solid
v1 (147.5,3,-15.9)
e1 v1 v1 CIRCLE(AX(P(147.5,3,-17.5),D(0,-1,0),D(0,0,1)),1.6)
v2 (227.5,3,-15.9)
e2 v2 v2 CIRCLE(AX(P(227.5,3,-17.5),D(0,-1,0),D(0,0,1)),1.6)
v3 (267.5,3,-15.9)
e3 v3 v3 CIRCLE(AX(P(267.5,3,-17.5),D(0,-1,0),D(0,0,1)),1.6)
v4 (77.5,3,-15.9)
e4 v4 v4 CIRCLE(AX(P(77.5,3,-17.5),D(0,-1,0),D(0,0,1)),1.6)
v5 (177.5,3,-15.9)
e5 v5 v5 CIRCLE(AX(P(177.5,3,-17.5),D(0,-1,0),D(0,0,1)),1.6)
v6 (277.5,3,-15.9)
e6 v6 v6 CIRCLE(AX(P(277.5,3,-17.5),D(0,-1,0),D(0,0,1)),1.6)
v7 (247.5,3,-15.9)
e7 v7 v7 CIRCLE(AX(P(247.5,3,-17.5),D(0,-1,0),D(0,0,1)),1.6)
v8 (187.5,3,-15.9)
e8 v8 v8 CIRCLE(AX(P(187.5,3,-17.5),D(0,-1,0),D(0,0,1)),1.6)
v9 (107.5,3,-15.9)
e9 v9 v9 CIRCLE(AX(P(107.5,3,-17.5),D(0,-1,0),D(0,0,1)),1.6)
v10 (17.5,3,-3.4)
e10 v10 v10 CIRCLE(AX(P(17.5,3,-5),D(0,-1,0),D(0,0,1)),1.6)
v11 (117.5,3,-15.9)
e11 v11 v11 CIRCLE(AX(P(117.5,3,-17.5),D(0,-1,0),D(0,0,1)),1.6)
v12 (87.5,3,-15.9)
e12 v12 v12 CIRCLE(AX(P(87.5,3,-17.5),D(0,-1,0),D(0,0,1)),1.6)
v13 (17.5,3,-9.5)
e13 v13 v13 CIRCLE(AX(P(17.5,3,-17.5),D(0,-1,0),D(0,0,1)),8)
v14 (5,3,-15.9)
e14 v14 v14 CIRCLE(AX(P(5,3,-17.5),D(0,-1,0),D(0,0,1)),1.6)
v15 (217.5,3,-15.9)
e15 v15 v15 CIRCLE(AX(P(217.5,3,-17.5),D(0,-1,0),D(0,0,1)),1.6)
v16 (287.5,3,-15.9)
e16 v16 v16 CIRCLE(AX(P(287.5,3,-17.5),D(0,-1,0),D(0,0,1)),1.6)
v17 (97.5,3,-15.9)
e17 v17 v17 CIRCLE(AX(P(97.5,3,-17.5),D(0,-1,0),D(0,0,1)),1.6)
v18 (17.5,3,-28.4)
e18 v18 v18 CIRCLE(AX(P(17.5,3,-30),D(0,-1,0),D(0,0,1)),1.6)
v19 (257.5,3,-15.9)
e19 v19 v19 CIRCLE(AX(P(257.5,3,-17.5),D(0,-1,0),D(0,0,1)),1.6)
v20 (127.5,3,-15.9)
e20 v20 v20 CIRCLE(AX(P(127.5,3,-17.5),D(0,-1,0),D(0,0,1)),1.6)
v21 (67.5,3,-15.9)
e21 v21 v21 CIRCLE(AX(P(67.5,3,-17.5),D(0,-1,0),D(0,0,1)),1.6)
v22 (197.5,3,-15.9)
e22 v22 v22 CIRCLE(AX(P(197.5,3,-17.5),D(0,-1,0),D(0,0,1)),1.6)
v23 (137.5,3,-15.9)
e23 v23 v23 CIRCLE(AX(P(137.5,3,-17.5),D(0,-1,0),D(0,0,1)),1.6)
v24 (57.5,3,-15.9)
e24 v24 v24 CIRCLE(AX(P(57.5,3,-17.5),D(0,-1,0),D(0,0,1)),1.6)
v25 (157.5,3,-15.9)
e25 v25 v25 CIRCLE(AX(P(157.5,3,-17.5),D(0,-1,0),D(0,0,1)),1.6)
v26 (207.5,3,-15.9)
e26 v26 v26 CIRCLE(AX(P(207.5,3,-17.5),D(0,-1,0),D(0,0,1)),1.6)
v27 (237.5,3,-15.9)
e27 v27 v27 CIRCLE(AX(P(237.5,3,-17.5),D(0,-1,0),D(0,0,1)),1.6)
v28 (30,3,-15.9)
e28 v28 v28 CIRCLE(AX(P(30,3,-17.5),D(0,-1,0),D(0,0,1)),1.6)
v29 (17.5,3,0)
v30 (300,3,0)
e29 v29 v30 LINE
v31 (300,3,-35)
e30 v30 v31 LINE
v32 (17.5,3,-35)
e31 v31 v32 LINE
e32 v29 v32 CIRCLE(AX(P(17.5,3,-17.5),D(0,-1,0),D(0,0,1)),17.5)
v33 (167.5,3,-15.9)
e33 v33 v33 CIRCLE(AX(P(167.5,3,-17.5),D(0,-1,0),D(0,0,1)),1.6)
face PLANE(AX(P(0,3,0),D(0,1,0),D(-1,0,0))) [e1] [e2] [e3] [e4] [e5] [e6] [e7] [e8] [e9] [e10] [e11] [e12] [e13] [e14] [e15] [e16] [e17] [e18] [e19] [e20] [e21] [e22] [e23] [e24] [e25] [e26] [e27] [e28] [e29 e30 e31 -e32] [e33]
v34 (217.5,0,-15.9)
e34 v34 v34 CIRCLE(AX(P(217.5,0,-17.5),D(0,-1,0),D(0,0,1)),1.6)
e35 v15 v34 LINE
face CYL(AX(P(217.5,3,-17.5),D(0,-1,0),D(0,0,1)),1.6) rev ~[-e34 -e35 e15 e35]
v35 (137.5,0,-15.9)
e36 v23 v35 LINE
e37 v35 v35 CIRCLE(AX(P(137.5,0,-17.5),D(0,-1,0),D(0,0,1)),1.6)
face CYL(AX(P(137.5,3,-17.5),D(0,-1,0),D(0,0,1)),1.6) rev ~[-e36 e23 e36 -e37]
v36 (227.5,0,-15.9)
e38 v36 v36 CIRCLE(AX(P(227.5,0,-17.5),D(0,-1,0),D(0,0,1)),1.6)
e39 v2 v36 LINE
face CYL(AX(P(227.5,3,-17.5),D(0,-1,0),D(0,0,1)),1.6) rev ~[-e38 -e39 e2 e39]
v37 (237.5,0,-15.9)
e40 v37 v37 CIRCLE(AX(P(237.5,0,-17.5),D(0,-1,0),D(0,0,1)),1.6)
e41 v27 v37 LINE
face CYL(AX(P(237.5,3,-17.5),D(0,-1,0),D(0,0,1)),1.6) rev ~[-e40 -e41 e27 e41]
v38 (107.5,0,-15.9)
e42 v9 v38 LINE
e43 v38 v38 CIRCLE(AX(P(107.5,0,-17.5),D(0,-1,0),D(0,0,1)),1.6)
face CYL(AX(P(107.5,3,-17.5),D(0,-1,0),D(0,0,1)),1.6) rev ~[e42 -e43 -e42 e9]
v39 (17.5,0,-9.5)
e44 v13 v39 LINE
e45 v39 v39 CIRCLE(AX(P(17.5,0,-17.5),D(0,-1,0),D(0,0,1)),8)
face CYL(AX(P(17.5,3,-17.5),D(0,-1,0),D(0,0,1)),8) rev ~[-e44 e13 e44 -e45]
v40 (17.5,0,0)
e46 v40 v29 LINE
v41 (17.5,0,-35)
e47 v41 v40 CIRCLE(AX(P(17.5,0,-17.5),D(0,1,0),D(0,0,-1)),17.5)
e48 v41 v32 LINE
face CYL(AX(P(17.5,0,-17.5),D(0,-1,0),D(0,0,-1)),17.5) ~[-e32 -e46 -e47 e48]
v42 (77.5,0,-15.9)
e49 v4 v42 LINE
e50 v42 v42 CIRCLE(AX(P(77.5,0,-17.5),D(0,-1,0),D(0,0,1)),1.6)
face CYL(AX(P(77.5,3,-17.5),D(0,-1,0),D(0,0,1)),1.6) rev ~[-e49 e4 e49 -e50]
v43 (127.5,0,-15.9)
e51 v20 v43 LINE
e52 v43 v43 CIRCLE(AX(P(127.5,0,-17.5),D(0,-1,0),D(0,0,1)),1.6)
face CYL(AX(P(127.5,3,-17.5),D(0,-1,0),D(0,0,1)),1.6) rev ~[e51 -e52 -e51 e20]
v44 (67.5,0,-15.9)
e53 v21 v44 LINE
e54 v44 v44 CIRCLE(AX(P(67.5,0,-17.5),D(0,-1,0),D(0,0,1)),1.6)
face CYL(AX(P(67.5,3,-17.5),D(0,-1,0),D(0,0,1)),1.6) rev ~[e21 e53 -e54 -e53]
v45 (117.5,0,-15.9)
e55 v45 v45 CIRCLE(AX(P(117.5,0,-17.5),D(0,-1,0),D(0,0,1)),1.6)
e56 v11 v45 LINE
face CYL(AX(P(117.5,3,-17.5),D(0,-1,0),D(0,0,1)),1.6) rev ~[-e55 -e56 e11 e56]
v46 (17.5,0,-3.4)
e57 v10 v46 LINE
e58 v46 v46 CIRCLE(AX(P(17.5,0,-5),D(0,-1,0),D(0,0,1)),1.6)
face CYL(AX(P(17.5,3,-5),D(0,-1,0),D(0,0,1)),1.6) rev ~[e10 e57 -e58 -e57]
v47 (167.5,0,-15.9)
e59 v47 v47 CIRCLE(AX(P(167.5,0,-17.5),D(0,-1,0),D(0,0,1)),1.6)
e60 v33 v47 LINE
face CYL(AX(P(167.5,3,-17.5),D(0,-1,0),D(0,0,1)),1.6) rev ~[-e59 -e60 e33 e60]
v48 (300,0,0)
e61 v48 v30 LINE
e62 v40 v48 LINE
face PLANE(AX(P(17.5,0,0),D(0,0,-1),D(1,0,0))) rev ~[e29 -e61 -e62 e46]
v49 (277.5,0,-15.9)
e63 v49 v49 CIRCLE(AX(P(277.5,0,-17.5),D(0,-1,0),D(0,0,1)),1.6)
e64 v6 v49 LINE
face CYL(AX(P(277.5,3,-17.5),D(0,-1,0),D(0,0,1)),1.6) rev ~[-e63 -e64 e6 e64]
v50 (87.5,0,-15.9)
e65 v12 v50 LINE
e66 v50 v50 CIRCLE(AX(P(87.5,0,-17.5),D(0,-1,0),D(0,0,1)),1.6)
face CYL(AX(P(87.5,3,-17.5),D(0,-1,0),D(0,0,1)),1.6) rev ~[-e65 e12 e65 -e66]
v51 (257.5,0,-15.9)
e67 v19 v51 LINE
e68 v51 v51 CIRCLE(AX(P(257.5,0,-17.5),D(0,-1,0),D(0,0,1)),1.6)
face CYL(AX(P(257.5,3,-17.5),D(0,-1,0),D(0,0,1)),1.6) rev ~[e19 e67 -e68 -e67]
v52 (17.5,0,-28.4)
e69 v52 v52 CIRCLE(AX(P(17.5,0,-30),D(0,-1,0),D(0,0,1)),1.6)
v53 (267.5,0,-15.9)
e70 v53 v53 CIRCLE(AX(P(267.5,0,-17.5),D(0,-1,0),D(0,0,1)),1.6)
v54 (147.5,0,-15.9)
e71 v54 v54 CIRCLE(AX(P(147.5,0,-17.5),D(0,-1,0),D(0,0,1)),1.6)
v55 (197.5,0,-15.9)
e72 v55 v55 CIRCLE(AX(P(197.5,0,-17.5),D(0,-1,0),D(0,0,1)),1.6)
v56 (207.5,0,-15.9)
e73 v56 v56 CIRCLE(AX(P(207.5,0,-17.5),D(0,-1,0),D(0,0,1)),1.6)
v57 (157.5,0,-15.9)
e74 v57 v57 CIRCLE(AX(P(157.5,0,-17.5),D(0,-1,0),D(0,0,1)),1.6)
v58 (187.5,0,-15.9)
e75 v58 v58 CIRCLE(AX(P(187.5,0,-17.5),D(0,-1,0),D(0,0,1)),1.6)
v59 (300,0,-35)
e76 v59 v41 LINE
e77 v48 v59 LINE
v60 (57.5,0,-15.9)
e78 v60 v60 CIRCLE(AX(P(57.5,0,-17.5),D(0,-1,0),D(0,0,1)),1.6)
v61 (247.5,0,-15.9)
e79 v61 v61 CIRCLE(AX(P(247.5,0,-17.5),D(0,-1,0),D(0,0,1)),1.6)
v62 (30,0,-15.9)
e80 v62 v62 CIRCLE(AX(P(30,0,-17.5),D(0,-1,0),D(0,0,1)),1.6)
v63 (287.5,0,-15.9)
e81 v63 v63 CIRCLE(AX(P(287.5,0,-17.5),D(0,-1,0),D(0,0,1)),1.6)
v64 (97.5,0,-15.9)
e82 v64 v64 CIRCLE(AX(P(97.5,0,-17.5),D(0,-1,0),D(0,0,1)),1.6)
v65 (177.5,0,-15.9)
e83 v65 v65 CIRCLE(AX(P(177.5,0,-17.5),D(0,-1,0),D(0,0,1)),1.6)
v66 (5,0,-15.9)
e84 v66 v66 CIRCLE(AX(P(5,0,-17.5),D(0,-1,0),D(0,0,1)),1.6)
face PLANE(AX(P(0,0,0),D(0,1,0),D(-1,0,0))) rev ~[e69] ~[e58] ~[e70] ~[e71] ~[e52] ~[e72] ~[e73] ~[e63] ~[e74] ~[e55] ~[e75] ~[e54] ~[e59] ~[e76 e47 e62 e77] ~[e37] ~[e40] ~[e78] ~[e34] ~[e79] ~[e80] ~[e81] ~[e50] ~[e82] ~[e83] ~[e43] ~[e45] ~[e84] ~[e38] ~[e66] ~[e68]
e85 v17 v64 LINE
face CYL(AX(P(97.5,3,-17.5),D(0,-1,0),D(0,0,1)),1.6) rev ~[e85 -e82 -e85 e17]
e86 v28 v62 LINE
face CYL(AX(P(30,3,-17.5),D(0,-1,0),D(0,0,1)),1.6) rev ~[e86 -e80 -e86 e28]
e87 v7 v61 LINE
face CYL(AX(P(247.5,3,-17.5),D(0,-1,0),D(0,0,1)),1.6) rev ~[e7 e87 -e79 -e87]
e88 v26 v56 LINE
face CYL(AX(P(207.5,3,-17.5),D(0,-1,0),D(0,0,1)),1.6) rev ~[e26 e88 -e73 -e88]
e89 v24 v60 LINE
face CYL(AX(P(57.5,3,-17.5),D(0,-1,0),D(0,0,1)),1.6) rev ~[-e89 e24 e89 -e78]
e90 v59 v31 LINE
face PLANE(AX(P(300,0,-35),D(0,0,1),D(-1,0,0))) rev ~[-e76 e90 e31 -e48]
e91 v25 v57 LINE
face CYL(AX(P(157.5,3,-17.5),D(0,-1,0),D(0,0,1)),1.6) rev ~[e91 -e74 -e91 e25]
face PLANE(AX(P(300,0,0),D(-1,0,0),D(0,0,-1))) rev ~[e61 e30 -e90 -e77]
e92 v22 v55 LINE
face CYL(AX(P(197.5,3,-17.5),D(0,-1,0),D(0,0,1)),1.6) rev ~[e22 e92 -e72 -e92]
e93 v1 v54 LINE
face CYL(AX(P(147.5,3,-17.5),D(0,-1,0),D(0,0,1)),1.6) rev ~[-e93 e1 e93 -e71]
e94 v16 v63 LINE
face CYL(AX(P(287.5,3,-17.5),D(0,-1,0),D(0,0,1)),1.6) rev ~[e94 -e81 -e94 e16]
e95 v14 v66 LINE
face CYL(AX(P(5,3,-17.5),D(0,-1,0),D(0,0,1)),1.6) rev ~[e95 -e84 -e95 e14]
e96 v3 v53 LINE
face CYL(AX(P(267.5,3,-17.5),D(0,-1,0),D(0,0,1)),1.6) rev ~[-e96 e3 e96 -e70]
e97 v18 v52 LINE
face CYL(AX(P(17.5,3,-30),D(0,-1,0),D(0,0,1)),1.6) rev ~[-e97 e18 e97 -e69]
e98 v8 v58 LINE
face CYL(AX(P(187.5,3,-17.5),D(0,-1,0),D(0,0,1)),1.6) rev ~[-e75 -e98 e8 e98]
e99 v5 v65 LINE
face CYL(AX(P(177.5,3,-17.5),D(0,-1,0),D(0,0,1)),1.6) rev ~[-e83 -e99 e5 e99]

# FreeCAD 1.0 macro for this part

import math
import FreeCAD as App
import Part
import Sketcher

V = App.Vector
Q = App.Units.Quantity

doc = App.newDocument("Part")
body = doc.addObject("PartDesign::Body", "Body")

# Sketch on XZ plane
sketch1 = doc.addObject("Sketcher::SketchObject", "Sketch")
body.addObject(sketch1)
sketch1.AttachmentSupport = (doc.XZ_Plane, [""])
sketch1.MapMode = "FlatFace"
sketch1.addGeometry(Part.ArcOfCircle(Part.Circle(V(18, -18, 0), V(0, 0, 1), 18), math.radians(90), math.radians(270)), False)
sketch1.addGeometry(Part.LineSegment(V(18, 0, 0), V(300, 0, 0)), False)
sketch1.addGeometry(Part.LineSegment(V(300, 0, 0), V(300, -35, 0)), False)
sketch1.addGeometry(Part.LineSegment(V(300, -35, 0), V(18, -35, 0)), False)
sketch1.addConstraint(Sketcher.Constraint("Tangent", 0, 1, 1, 1))
sketch1.addConstraint(Sketcher.Constraint("Coincident", 1, 2, 2, 1))
sketch1.addConstraint(Sketcher.Constraint("Coincident", 2, 2, 3, 1))
sketch1.addConstraint(Sketcher.Constraint("Tangent", 3, 2, 0, 2))
sketch1.addConstraint(Sketcher.Constraint("Horizontal", 1))
sketch1.addConstraint(Sketcher.Constraint("Vertical", 2))
sketch1.addConstraint(Sketcher.Constraint("Horizontal", 3))
sketch1.addConstraint(Sketcher.Constraint("PointOnObject", 0, 1, -1))
sketch1.addConstraint(Sketcher.Constraint("Radius", 0, Q("17.5 mm")))
sketch1.addConstraint(Sketcher.Constraint("DistanceX", -1, 1, 1, 2, Q("300 mm")))
sketch1.addConstraint(Sketcher.Constraint("DistanceX", -1, 1, 0, 3, Q("17.5 mm")))
pad1 = doc.addObject("PartDesign::Pad", "Pad")
body.addObject(pad1)
pad1.Profile = sketch1
pad1.Length = 3
pad1.Reversed = True

# Sketch on XZ plane
sketch2 = doc.addObject("Sketcher::SketchObject", "Sketch001")
body.addObject(sketch2)
sketch2.AttachmentSupport = (doc.XZ_Plane, [""])
sketch2.MapMode = "FlatFace"
sketch2.AttachmentOffset = App.Placement(V(0, 0, -3), App.Rotation())
sketch2.addGeometry(Part.Circle(V(18, -18, 0), V(0, 0, 1), 8), False)
sketch2.addConstraint(Sketcher.Constraint("Diameter", 0, Q("16 mm")))
sketch2.addConstraint(Sketcher.Constraint("DistanceX", -1, 1, 0, 3, Q("17.5 mm")))
sketch2.addConstraint(Sketcher.Constraint("DistanceY", 0, 3, -1, 1, Q("17.5 mm")))
doc.recompute()
hole = doc.addObject("PartDesign::Hole", "Hole")
body.addObject(hole)
hole.Profile = sketch2
hole.ThreadType = "None"
hole.Diameter = 16
hole.DepthType = "ThroughAll"
hole.Reversed = True

# Sketch on XZ plane
sketch3 = doc.addObject("Sketcher::SketchObject", "Sketch002")
body.addObject(sketch3)
sketch3.AttachmentSupport = (doc.XZ_Plane, [""])
sketch3.MapMode = "FlatFace"
sketch3.AttachmentOffset = App.Placement(V(0, 0, -3), App.Rotation())
sketch3.addGeometry(Part.Circle(V(57.5, -17.5, 0), V(0, 0, 1), 1.6), False)
sketch3.addGeometry(Part.Circle(V(67.5, -17.5, 0), V(0, 0, 1), 1.6), False)
sketch3.addGeometry(Part.Circle(V(77.5, -17.5, 0), V(0, 0, 1), 1.6), False)
sketch3.addGeometry(Part.Circle(V(87.5, -17.5, 0), V(0, 0, 1), 1.6), False)
sketch3.addGeometry(Part.Circle(V(97.5, -17.5, 0), V(0, 0, 1), 1.6), False)
sketch3.addGeometry(Part.Circle(V(107.5, -17.5, 0), V(0, 0, 1), 1.6), False)
sketch3.addGeometry(Part.Circle(V(117.5, -17.5, 0), V(0, 0, 1), 1.6), False)
sketch3.addGeometry(Part.Circle(V(127.5, -17.5, 0), V(0, 0, 1), 1.6), False)
sketch3.addGeometry(Part.Circle(V(137.5, -17.5, 0), V(0, 0, 1), 1.6), False)
sketch3.addGeometry(Part.Circle(V(147.5, -17.5, 0), V(0, 0, 1), 1.6), False)
sketch3.addGeometry(Part.Circle(V(157.5, -17.5, 0), V(0, 0, 1), 1.6), False)
sketch3.addGeometry(Part.Circle(V(167.5, -17.5, 0), V(0, 0, 1), 1.6), False)
sketch3.addGeometry(Part.Circle(V(177.5, -17.5, 0), V(0, 0, 1), 1.6), False)
sketch3.addGeometry(Part.Circle(V(187.5, -17.5, 0), V(0, 0, 1), 1.6), False)
sketch3.addGeometry(Part.Circle(V(197.5, -17.5, 0), V(0, 0, 1), 1.6), False)
sketch3.addGeometry(Part.Circle(V(207.5, -17.5, 0), V(0, 0, 1), 1.6), False)
sketch3.addGeometry(Part.Circle(V(217.5, -17.5, 0), V(0, 0, 1), 1.6), False)
sketch3.addGeometry(Part.Circle(V(227.5, -17.5, 0), V(0, 0, 1), 1.6), False)
sketch3.addGeometry(Part.Circle(V(237.5, -17.5, 0), V(0, 0, 1), 1.6), False)
sketch3.addGeometry(Part.Circle(V(247.5, -17.5, 0), V(0, 0, 1), 1.6), False)
sketch3.addGeometry(Part.Circle(V(257.5, -17.5, 0), V(0, 0, 1), 1.6), False)
sketch3.addGeometry(Part.Circle(V(267.5, -17.5, 0), V(0, 0, 1), 1.6), False)
sketch3.addGeometry(Part.Circle(V(277.5, -17.5, 0), V(0, 0, 1), 1.6), False)
sketch3.addGeometry(Part.Circle(V(287.5, -17.5, 0), V(0, 0, 1), 1.6), False)
sketch3.addConstraint(Sketcher.Constraint("Equal", 0, 1))
sketch3.addConstraint(Sketcher.Constraint("Equal", 1, 2))
sketch3.addConstraint(Sketcher.Constraint("Equal", 2, 3))
sketch3.addConstraint(Sketcher.Constraint("Equal", 3, 4))
sketch3.addConstraint(Sketcher.Constraint("Equal", 4, 5))
sketch3.addConstraint(Sketcher.Constraint("Equal", 5, 6))
sketch3.addConstraint(Sketcher.Constraint("Equal", 6, 7))
sketch3.addConstraint(Sketcher.Constraint("Equal", 7, 8))
sketch3.addConstraint(Sketcher.Constraint("Equal", 8, 9))
sketch3.addConstraint(Sketcher.Constraint("Equal", 9, 10))
sketch3.addConstraint(Sketcher.Constraint("Equal", 10, 11))
sketch3.addConstraint(Sketcher.Constraint("Equal", 11, 12))
sketch3.addConstraint(Sketcher.Constraint("Equal", 12, 13))
sketch3.addConstraint(Sketcher.Constraint("Equal", 13, 14))
sketch3.addConstraint(Sketcher.Constraint("Equal", 14, 15))
sketch3.addConstraint(Sketcher.Constraint("Equal", 15, 16))
sketch3.addConstraint(Sketcher.Constraint("Equal", 16, 17))
sketch3.addConstraint(Sketcher.Constraint("Equal", 17, 18))
sketch3.addConstraint(Sketcher.Constraint("Equal", 18, 19))
sketch3.addConstraint(Sketcher.Constraint("Equal", 19, 20))
sketch3.addConstraint(Sketcher.Constraint("Equal", 20, 21))
sketch3.addConstraint(Sketcher.Constraint("Equal", 21, 22))
sketch3.addConstraint(Sketcher.Constraint("Equal", 22, 23))
sketch3.addConstraint(Sketcher.Constraint("Horizontal", 0, 3, 1, 3))
sketch3.addConstraint(Sketcher.Constraint("Horizontal", 1, 3, 2, 3))
sketch3.addConstraint(Sketcher.Constraint("Horizontal", 2, 3, 3, 3))
sketch3.addConstraint(Sketcher.Constraint("Horizontal", 3, 3, 4, 3))
sketch3.addConstraint(Sketcher.Constraint("Horizontal", 4, 3, 5, 3))
sketch3.addConstraint(Sketcher.Constraint("Horizontal", 5, 3, 6, 3))
sketch3.addConstraint(Sketcher.Constraint("Horizontal", 6, 3, 7, 3))
sketch3.addConstraint(Sketcher.Constraint("Horizontal", 7, 3, 8, 3))
sketch3.addConstraint(Sketcher.Constraint("Horizontal", 8, 3, 9, 3))
sketch3.addConstraint(Sketcher.Constraint("Horizontal", 9, 3, 10, 3))
sketch3.addConstraint(Sketcher.Constraint("Horizontal", 10, 3, 11, 3))
sketch3.addConstraint(Sketcher.Constraint("Horizontal", 11, 3, 12, 3))
sketch3.addConstraint(Sketcher.Constraint("Horizontal", 12, 3, 13, 3))
sketch3.addConstraint(Sketcher.Constraint("Horizontal", 13, 3, 14, 3))
sketch3.addConstraint(Sketcher.Constraint("Horizontal", 14, 3, 15, 3))
sketch3.addConstraint(Sketcher.Constraint("Horizontal", 15, 3, 16, 3))
sketch3.addConstraint(Sketcher.Constraint("Horizontal", 16, 3, 17, 3))
sketch3.addConstraint(Sketcher.Constraint("Horizontal", 17, 3, 18, 3))
sketch3.addConstraint(Sketcher.Constraint("Horizontal", 18, 3, 19, 3))
sketch3.addConstraint(Sketcher.Constraint("Horizontal", 19, 3, 20, 3))
sketch3.addConstraint(Sketcher.Constraint("Horizontal", 20, 3, 21, 3))
sketch3.addConstraint(Sketcher.Constraint("Horizontal", 21, 3, 22, 3))
sketch3.addConstraint(Sketcher.Constraint("Horizontal", 22, 3, 23, 3))
sketch3.addConstraint(Sketcher.Constraint("Diameter", 0, Q("3.2 mm")))
sketch3.addConstraint(Sketcher.Constraint("DistanceX", 0, 3, 1, 3, Q("10 mm")))
sketch3.addConstraint(Sketcher.Constraint("DistanceX", 1, 3, 2, 3, Q("10 mm")))
sketch3.addConstraint(Sketcher.Constraint("DistanceX", 2, 3, 3, 3, Q("10 mm")))
sketch3.addConstraint(Sketcher.Constraint("DistanceX", 3, 3, 4, 3, Q("10 mm")))
sketch3.addConstraint(Sketcher.Constraint("DistanceX", 4, 3, 5, 3, Q("10 mm")))
sketch3.addConstraint(Sketcher.Constraint("DistanceX", 5, 3, 6, 3, Q("10 mm")))
sketch3.addConstraint(Sketcher.Constraint("DistanceX", 6, 3, 7, 3, Q("10 mm")))
sketch3.addConstraint(Sketcher.Constraint("DistanceX", 7, 3, 8, 3, Q("10 mm")))
sketch3.addConstraint(Sketcher.Constraint("DistanceX", 8, 3, 9, 3, Q("10 mm")))
sketch3.addConstraint(Sketcher.Constraint("DistanceX", 9, 3, 10, 3, Q("10 mm")))
sketch3.addConstraint(Sketcher.Constraint("DistanceX", 10, 3, 11, 3, Q("10 mm")))
sketch3.addConstraint(Sketcher.Constraint("DistanceX", 11, 3, 12, 3, Q("10 mm")))
sketch3.addConstraint(Sketcher.Constraint("DistanceX", 12, 3, 13, 3, Q("10 mm")))
sketch3.addConstraint(Sketcher.Constraint("DistanceX", 13, 3, 14, 3, Q("10 mm")))
sketch3.addConstraint(Sketcher.Constraint("DistanceX", 14, 3, 15, 3, Q("10 mm")))
sketch3.addConstraint(Sketcher.Constraint("DistanceX", 15, 3, 16, 3, Q("10 mm")))
sketch3.addConstraint(Sketcher.Constraint("DistanceX", 16, 3, 17, 3, Q("10 mm")))
sketch3.addConstraint(Sketcher.Constraint("DistanceX", 17, 3, 18, 3, Q("10 mm")))
sketch3.addConstraint(Sketcher.Constraint("DistanceX", 18, 3, 19, 3, Q("10 mm")))
sketch3.addConstraint(Sketcher.Constraint("DistanceX", 19, 3, 20, 3, Q("10 mm")))
sketch3.addConstraint(Sketcher.Constraint("DistanceX", 20, 3, 21, 3, Q("10 mm")))
sketch3.addConstraint(Sketcher.Constraint("DistanceX", 21, 3, 22, 3, Q("10 mm")))
sketch3.addConstraint(Sketcher.Constraint("DistanceX", 22, 3, 23, 3, Q("10 mm")))
sketch3.addConstraint(Sketcher.Constraint("DistanceX", -1, 1, 0, 3, Q("57.5 mm")))
sketch3.addConstraint(Sketcher.Constraint("DistanceY", 0, 3, -1, 1, Q("17.5 mm")))
doc.recompute()
hole2 = doc.addObject("PartDesign::Hole", "Hole001")
body.addObject(hole2)
hole2.Profile = sketch3
hole2.ThreadType = "None"
hole2.Diameter = 3.2
hole2.DepthType = "ThroughAll"
hole2.Reversed = True

# Sketch on XZ plane
sketch4 = doc.addObject("Sketcher::SketchObject", "Sketch003")
body.addObject(sketch4)
sketch4.AttachmentSupport = (doc.XZ_Plane, [""])
sketch4.MapMode = "FlatFace"
sketch4.AttachmentOffset = App.Placement(V(0, 0, -3), App.Rotation())
sketch4.addGeometry(Part.Circle(V(17.5, -5, 0), V(0, 0, 1), 1.6), False)
sketch4.addGeometry(Part.Circle(V(30, -17.5, 0), V(0, 0, 1), 1.6), False)
sketch4.addGeometry(Part.Circle(V(17.5, -30, 0), V(0, 0, 1), 1.6), False)
sketch4.addGeometry(Part.Circle(V(5, -17.5, 0), V(0, 0, 1), 1.6), False)
sketch4.addConstraint(Sketcher.Constraint("Equal", 0, 1))
sketch4.addConstraint(Sketcher.Constraint("Equal", 1, 2))
sketch4.addConstraint(Sketcher.Constraint("Equal", 2, 3))
sketch4.addConstraint(Sketcher.Constraint("Horizontal", 1, 3, 3, 3))
sketch4.addConstraint(Sketcher.Constraint("Vertical", 0, 3, 2, 3))
sketch4.addConstraint(Sketcher.Constraint("Diameter", 0, Q("3.2 mm")))
sketch4.addConstraint(Sketcher.Constraint("DistanceY", 0, 3, -1, 1, Q("5 mm")))
sketch4.addConstraint(Sketcher.Constraint("DistanceX", -1, 1, 1, 3, Q("30 mm")))
sketch4.addConstraint(Sketcher.Constraint("DistanceY", 2, 3, -1, 1, Q("30 mm")))
sketch4.addConstraint(Sketcher.Constraint("DistanceX", -1, 1, 3, 3, Q("5 mm")))
sketch4.addConstraint(Sketcher.Constraint("DistanceX", -1, 1, 0, 3, Q("17.5 mm")))
sketch4.addConstraint(Sketcher.Constraint("DistanceY", 1, 3, -1, 1, Q("17.5 mm")))
doc.recompute()
hole3 = doc.addObject("PartDesign::Hole", "Hole002")
body.addObject(hole3)
hole3.Profile = sketch4
hole3.ThreadType = "None"
hole3.Diameter = 3.2
hole3.DepthType = "ThroughAll"
hole3.Reversed = True

doc.recompute()
